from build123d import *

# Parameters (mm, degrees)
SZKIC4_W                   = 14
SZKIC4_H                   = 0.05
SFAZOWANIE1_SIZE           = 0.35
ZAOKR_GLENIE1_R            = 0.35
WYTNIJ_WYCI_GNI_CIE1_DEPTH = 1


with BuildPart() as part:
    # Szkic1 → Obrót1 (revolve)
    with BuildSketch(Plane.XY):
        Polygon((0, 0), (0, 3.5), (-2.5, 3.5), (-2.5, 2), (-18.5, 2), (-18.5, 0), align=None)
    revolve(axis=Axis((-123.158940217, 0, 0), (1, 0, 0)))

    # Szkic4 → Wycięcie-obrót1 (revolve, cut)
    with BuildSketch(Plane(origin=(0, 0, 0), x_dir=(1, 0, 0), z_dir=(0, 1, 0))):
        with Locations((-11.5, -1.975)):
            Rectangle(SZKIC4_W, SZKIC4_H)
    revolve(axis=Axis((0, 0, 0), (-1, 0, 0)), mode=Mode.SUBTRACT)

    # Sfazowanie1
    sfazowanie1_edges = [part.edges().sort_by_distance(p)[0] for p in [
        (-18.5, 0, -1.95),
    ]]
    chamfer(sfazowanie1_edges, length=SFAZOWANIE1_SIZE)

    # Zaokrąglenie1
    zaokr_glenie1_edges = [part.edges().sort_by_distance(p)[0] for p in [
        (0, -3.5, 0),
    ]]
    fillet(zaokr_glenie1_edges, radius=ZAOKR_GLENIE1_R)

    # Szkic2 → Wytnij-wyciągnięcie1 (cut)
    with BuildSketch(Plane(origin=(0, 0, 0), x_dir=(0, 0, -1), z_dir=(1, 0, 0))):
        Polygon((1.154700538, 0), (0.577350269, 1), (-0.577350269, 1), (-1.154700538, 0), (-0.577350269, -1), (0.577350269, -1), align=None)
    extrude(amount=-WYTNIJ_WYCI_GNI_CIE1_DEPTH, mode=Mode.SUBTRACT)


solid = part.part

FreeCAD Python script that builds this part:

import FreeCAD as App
import Part
import Sketcher
from FreeCAD import Vector
Q = App.Units.Quantity


def edges_at(feature, points):
    """Names of the edges that pass closest to the given points."""
    edges = feature.Shape.Edges
    near = lambda p: min(range(len(edges)), key=lambda i: edges[i].distToShape(Part.Vertex(*p))[0])
    return sorted({f"Edge{near(p) + 1}" for p in points})

doc = App.newDocument("Part")
body = doc.addObject("PartDesign::Body", "Body")

# Sketch on XY plane
sketch1 = body.newObject("Sketcher::SketchObject", "Sketch")
sketch1.AttachmentSupport = (doc.getObject("XY_Plane"), [""])
sketch1.MapMode = "FlatFace"
sketch1.addGeometry([
    Part.LineSegment(Vector(0, 0, 0), Vector(0, 3.5, 0)),  # 0
    Part.LineSegment(Vector(0, 3.5, 0), Vector(-2.5, 3.5, 0)),  # 1
    Part.LineSegment(Vector(-2.5, 3.5, 0), Vector(-2.5, 2, 0)),  # 2
    Part.LineSegment(Vector(-2.5, 2, 0), Vector(-18.5, 2, 0)),  # 3
    Part.LineSegment(Vector(-18.5, 2, 0), Vector(-18.5, 0, 0)),  # 4
    Part.LineSegment(Vector(-18.5, 0, 0), Vector(0, 0, 0)),  # 5
], False)
sketch1.addConstraint([
    Sketcher.Constraint("Coincident", 0, 2, 1, 1),
    Sketcher.Constraint("Coincident", 1, 2, 2, 1),
    Sketcher.Constraint("Coincident", 2, 2, 3, 1),
    Sketcher.Constraint("Coincident", 3, 2, 4, 1),
    Sketcher.Constraint("Coincident", 4, 2, 5, 1),
    Sketcher.Constraint("Coincident", 5, 2, 0, 1),
    Sketcher.Constraint("Vertical", 0),
    Sketcher.Constraint("Horizontal", 1),
    Sketcher.Constraint("Vertical", 2),
    Sketcher.Constraint("Horizontal", 3),
    Sketcher.Constraint("Vertical", 4),
    Sketcher.Constraint("Horizontal", 5),
    Sketcher.Constraint("Coincident", 5, 2, -1, 1),
    Sketcher.Constraint("DistanceX", 3, 2, 3, 1, 16.0),
    Sketcher.Constraint("DistanceY", 4, 2, 4, 1, 2.0),
    Sketcher.Constraint("DistanceX", 1, 2, 1, 1, 2.5),
    Sketcher.Constraint("DistanceY", 0, 1, 0, 2, 3.5),
])
revolution = body.newObject("PartDesign::Revolution", "Revolution")
revolution.Profile = sketch1
revolution.ReferenceAxis = (sketch1, ["H_Axis"])
revolution.Angle = 360

# Sketch on XZ plane
sketch2 = body.newObject("Sketcher::SketchObject", "Sketch001")
sketch2.AttachmentSupport = (doc.getObject("XZ_Plane"), [""])
sketch2.MapMode = "FlatFace"
sketch2.addGeometry([
    Part.LineSegment(Vector(-18.5, 1.95, 0), Vector(-18.5, 2, 0)),
    Part.LineSegment(Vector(-18.5, 2, 0), Vector(-4.5, 2, 0)),
    Part.LineSegment(Vector(-4.5, 2, 0), Vector(-4.5, 1.95, 0)),
    Part.LineSegment(Vector(-4.5, 1.95, 0), Vector(-18.5, 1.95, 0)),
], False)
sketch2.addConstraint([
    Sketcher.Constraint("Coincident", 0, 2, 1, 1),
    Sketcher.Constraint("Coincident", 1, 2, 2, 1),
    Sketcher.Constraint("Coincident", 2, 2, 3, 1),
    Sketcher.Constraint("Coincident", 3, 2, 0, 1),
    Sketcher.Constraint("Vertical", 0),
    Sketcher.Constraint("Horizontal", 1),
    Sketcher.Constraint("Vertical", 2),
    Sketcher.Constraint("Horizontal", 3),
    Sketcher.Constraint("DistanceX", 1, 1, 1, 2, 14.0),
    Sketcher.Constraint("DistanceY", -1, 1, 0, 2, 2.0),
    Sketcher.Constraint("DistanceY", 0, 1, 0, 2, 0.05),
    Sketcher.Constraint("DistanceX", 0, 2, -1, 1, 18.5),
])
groove = body.newObject("PartDesign::Groove", "Groove")
groove.Profile = sketch2
groove.ReferenceAxis = (sketch2, ["H_Axis"])
groove.Angle = 360
doc.recompute()

chamfer = body.newObject("PartDesign::Chamfer", "Chamfer")
chamfer.Base = (groove, edges_at(groove, [(-18.5, 0, -1.95)]))
chamfer.Size = 0.35
doc.recompute()

fillet = body.newObject("PartDesign::Fillet", "Fillet")
fillet.Base = (chamfer, edges_at(chamfer, [(0, -3.5, 0)]))
fillet.Radius = 0.35

# Sketch on YZ plane
sketch3 = body.newObject("Sketcher::SketchObject", "Sketch002")
sketch3.AttachmentSupport = (doc.getObject("YZ_Plane"), [""])
sketch3.MapMode = "FlatFace"
sketch3.addGeometry([
    Part.LineSegment(Vector(0, -1.2, 0), Vector(1, -0.6, 0)),  # 0
    Part.LineSegment(Vector(1, -0.6, 0), Vector(1, 0.6, 0)),  # 1
    Part.LineSegment(Vector(1, 0.6, 0), Vector(0, 1.2, 0)),  # 2
    Part.LineSegment(Vector(0, 1.2, 0), Vector(-1, 0.6, 0)),  # 3
    Part.LineSegment(Vector(-1, 0.6, 0), Vector(-1, -0.6, 0)),  # 4
    Part.LineSegment(Vector(-1, -0.6, 0), Vector(0, -1.2, 0)),  # 5
], False)
sketch3.addConstraint([
    Sketcher.Constraint("Coincident", 0, 2, 1, 1),
    Sketcher.Constraint("Coincident", 1, 2, 2, 1),
    Sketcher.Constraint("Coincident", 2, 2, 3, 1),
    Sketcher.Constraint("Coincident", 3, 2, 4, 1),
    Sketcher.Constraint("Coincident", 4, 2, 5, 1),
    Sketcher.Constraint("Coincident", 5, 2, 0, 1),
    Sketcher.Constraint("Vertical", 1),
    Sketcher.Constraint("Vertical", 4),
    Sketcher.Constraint("Symmetric", 0, 2, 3, 2, -1, 1),
    Sketcher.Constraint("Symmetric", 2, 2, 5, 2, -1, 1),
    Sketcher.Constraint("PointOnObject", 2, 2, -2),
    Sketcher.Constraint("Parallel", 2, 5),
    Sketcher.Constraint("Horizontal", 1, 2, 3, 2),
    Sketcher.Constraint("Angle", 0, Q("30 deg")),
    Sketcher.Constraint("DistanceX", -1, 1, 0, 2, 1.0),
    Sketcher.Constraint("DistanceY", 1, 1, 1, 2, 1.154701),
])
pocket1 = body.newObject("PartDesign::Pocket", "Pocket")
pocket1.Profile = sketch3
pocket1.Length = 1

doc.recompute()
